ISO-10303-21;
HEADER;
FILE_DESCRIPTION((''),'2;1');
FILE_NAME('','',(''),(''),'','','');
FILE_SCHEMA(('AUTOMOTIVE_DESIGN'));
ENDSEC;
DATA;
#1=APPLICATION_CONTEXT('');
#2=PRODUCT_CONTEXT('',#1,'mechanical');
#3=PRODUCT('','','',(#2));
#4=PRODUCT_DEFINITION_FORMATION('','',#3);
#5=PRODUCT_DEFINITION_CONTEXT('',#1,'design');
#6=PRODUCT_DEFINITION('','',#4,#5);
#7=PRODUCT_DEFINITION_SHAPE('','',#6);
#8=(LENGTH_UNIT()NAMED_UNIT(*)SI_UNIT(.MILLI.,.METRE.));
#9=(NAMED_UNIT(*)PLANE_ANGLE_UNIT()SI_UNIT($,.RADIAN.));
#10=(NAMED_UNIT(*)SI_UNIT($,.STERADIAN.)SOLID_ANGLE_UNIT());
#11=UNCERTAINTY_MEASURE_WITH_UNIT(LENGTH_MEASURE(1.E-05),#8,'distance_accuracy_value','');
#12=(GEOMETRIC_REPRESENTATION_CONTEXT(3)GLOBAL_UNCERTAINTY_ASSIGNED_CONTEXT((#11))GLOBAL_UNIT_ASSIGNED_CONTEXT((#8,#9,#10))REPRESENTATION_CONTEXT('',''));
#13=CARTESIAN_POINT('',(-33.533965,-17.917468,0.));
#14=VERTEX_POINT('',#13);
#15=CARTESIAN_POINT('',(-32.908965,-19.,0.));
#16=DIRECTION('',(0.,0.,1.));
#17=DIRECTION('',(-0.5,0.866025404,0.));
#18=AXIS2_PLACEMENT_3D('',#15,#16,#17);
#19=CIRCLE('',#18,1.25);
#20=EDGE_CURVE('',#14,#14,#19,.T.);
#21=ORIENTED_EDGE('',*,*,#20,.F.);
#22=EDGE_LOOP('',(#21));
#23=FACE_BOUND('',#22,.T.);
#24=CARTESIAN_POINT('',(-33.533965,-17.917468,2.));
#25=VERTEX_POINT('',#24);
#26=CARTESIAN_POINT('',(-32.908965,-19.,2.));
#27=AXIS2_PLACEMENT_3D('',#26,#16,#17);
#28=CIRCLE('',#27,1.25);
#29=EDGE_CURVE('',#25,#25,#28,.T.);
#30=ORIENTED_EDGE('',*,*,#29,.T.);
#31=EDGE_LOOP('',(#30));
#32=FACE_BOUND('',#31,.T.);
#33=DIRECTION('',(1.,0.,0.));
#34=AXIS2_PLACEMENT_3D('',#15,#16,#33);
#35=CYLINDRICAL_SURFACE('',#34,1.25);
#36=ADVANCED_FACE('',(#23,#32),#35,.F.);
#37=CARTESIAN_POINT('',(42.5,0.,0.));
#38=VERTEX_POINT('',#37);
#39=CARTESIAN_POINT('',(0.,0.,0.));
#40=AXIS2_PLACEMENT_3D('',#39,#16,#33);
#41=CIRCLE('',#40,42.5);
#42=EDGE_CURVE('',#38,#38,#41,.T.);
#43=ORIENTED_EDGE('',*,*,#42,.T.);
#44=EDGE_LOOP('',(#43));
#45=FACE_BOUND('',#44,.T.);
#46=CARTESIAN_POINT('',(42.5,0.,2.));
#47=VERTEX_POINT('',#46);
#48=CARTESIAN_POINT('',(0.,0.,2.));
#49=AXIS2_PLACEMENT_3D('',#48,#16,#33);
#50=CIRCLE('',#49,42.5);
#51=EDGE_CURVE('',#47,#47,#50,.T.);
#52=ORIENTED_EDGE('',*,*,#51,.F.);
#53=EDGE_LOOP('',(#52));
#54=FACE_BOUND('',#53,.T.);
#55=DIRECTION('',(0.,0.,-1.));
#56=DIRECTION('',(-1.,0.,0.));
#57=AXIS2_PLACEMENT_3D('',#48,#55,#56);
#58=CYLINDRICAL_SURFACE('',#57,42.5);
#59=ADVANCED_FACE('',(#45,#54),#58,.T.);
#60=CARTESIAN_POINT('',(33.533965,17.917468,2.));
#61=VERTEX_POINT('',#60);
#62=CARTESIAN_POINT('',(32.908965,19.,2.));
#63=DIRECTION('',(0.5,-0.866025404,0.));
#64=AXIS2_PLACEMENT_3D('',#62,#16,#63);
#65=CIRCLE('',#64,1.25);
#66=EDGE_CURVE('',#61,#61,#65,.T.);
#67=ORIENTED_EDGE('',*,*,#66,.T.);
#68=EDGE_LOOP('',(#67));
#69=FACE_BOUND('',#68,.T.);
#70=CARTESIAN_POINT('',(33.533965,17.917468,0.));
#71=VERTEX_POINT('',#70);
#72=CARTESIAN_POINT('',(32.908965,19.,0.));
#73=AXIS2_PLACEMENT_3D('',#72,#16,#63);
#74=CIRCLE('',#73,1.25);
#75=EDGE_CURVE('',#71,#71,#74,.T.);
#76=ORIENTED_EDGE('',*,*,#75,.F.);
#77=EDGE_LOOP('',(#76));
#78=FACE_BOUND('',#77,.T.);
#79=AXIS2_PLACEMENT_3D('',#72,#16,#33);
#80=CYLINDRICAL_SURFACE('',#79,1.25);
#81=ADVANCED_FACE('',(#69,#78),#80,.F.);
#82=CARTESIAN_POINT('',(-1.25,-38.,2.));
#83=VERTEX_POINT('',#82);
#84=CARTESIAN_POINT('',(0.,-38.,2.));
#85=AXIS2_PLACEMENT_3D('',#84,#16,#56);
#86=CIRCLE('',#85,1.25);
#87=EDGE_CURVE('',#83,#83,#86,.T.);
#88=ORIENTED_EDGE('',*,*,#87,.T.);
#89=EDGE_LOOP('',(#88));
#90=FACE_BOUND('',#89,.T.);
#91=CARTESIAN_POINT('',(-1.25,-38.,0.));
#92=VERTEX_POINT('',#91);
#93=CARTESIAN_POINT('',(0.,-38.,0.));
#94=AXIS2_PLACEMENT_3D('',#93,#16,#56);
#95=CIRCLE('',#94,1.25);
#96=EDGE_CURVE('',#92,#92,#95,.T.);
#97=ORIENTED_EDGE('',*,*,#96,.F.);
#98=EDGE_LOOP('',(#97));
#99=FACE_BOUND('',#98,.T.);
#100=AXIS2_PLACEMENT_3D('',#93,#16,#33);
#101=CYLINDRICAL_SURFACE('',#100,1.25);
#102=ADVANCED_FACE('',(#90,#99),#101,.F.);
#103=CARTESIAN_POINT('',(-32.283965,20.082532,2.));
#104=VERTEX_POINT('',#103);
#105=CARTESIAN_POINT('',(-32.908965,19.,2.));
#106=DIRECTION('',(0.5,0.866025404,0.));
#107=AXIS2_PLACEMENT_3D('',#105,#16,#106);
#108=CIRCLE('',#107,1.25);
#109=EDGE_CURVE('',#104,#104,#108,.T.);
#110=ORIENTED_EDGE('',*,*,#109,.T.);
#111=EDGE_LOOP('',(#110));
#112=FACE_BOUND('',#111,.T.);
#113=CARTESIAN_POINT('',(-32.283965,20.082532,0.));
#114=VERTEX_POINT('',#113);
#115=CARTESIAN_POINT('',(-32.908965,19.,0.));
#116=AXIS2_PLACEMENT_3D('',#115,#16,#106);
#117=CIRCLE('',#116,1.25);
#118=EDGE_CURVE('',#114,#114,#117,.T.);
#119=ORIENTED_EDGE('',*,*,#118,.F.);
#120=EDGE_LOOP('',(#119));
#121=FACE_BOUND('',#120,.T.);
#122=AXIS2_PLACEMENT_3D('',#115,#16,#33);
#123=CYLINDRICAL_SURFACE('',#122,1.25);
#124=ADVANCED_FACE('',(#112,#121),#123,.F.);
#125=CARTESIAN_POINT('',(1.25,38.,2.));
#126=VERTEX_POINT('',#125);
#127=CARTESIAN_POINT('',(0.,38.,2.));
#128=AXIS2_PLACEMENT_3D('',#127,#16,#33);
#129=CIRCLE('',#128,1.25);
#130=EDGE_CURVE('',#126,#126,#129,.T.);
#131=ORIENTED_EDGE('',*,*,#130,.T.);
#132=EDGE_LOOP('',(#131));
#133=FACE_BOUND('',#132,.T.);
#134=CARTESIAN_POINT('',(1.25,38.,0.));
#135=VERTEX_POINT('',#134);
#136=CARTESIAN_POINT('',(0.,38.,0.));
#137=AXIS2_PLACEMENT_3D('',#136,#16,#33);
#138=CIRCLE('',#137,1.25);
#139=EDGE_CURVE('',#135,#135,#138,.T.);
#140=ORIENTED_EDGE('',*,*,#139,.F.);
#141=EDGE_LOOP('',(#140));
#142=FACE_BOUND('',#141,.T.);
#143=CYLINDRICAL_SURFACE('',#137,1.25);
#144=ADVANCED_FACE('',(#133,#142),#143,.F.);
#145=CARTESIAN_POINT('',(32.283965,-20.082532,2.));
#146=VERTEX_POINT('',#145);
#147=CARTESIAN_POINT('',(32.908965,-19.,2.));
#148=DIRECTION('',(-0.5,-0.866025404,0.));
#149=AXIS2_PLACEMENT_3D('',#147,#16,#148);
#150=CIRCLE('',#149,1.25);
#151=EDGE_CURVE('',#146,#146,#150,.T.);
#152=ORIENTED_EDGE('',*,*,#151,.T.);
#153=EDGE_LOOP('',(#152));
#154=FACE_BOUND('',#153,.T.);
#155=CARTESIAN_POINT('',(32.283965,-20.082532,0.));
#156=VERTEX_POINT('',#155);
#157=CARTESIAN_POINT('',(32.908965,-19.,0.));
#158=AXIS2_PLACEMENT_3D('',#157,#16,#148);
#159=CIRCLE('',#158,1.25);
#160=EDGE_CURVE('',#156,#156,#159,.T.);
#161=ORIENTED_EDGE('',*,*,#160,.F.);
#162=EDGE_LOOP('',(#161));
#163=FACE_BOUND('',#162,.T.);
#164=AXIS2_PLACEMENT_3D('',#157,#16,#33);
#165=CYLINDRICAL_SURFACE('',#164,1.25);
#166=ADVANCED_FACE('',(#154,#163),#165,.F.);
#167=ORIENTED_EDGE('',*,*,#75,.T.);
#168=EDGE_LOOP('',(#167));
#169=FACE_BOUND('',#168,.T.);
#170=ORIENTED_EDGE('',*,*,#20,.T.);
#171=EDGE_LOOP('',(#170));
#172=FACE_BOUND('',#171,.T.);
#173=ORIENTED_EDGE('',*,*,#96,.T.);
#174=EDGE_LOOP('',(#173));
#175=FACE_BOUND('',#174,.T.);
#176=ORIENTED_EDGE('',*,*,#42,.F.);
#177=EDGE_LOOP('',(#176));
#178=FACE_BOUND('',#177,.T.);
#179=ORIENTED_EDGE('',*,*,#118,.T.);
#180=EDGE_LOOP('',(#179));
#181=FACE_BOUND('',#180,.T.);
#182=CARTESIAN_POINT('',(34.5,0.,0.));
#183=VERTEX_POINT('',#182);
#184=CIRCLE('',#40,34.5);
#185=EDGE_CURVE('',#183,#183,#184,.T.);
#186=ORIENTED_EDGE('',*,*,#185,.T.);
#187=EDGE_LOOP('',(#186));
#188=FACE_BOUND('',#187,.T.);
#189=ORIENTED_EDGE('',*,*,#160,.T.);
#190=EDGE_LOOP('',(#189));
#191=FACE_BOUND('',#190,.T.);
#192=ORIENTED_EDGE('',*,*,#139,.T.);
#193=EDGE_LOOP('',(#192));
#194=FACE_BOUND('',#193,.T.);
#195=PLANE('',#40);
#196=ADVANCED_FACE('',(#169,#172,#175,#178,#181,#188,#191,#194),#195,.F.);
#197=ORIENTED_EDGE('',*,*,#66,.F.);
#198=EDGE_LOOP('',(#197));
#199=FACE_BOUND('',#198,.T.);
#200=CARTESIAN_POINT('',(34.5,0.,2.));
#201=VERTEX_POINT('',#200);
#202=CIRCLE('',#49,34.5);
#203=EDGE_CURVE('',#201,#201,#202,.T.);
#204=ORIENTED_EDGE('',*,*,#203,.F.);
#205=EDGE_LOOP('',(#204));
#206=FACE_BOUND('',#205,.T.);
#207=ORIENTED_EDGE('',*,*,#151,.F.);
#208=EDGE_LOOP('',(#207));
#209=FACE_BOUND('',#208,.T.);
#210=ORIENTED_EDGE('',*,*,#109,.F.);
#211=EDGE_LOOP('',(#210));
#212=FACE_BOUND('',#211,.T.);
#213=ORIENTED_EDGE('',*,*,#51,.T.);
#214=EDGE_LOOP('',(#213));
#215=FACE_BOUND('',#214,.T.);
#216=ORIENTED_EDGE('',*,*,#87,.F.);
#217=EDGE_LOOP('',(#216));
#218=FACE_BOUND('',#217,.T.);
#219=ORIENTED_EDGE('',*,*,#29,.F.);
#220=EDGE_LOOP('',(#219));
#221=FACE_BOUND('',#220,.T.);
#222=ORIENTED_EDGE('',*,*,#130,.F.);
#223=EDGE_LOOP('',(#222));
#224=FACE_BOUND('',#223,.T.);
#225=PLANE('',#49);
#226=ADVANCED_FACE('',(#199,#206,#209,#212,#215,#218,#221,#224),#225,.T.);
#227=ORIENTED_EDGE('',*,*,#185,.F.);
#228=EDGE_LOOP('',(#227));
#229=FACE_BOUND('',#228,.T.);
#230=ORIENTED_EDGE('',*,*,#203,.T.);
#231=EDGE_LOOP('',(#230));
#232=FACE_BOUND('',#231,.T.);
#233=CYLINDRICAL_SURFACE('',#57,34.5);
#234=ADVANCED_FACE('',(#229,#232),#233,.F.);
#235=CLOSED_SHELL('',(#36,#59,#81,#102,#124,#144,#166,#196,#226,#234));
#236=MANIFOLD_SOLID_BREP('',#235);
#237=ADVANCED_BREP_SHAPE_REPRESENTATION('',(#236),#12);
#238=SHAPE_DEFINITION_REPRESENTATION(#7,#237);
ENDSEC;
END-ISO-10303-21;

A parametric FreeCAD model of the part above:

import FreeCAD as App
import Part
import Sketcher

V = App.Vector

doc = App.newDocument("Part")
body = doc.addObject("PartDesign::Body", "Body")

sketch1 = body.newObject("Sketcher::SketchObject", "Sketch")
sketch1.AttachmentSupport = (doc.getObject("XY_Plane"), [""])
sketch1.MapMode = "FlatFace"
sketch1.addGeometry(Part.Circle(V(0, 0, 0), V(0, 0, 1), 42), False)
sketch1.addGeometry(Part.Circle(V(0, 0, 0), V(0, 0, 1), 34), False)
sketch1.addConstraint(Sketcher.Constraint("Coincident", 0, 3, -1, 1))
sketch1.addConstraint(Sketcher.Constraint("Coincident", 1, 3, -1, 1))
sketch1.addConstraint(Sketcher.Constraint("Diameter", 0, 85.0))
sketch1.addConstraint(Sketcher.Constraint("Diameter", 1, 69.0))
pad1 = body.newObject("PartDesign::Pad", "Pad")
pad1.Profile = sketch1
pad1.Length = 2

sketch2 = body.newObject("Sketcher::SketchObject", "Sketch001")
sketch2.AttachmentSupport = (doc.getObject("XY_Plane"), [""])
sketch2.MapMode = "FlatFace"
sketch2.AttachmentOffset = App.Placement(V(0, 0, 2), App.Rotation())
sketch2.addGeometry(Part.Circle(V(0, 38, 0), V(0, 0, 1), 1.2), False)
sketch2.addConstraint(Sketcher.Constraint("PointOnObject", 0, 3, -2))
sketch2.addConstraint(Sketcher.Constraint("Diameter", 0, 2.5))
sketch2.addConstraint(Sketcher.Constraint("DistanceY", -1, 1, 0, 3, 38.0))
pocket1 = body.newObject("PartDesign::Pocket", "Pocket")
pocket1.Profile = sketch2
pocket1.Type = "ThroughAll"
doc.recompute()

polarpattern = body.newObject("PartDesign::PolarPattern", "PolarPattern")
polarpattern.Originals = [pocket1]
polarpattern.Axis = (doc.getObject("Z_Axis"), [""])
polarpattern.Angle = 360
polarpattern.Occurrences = 6
body.Tip = polarpattern

doc.recompute()
